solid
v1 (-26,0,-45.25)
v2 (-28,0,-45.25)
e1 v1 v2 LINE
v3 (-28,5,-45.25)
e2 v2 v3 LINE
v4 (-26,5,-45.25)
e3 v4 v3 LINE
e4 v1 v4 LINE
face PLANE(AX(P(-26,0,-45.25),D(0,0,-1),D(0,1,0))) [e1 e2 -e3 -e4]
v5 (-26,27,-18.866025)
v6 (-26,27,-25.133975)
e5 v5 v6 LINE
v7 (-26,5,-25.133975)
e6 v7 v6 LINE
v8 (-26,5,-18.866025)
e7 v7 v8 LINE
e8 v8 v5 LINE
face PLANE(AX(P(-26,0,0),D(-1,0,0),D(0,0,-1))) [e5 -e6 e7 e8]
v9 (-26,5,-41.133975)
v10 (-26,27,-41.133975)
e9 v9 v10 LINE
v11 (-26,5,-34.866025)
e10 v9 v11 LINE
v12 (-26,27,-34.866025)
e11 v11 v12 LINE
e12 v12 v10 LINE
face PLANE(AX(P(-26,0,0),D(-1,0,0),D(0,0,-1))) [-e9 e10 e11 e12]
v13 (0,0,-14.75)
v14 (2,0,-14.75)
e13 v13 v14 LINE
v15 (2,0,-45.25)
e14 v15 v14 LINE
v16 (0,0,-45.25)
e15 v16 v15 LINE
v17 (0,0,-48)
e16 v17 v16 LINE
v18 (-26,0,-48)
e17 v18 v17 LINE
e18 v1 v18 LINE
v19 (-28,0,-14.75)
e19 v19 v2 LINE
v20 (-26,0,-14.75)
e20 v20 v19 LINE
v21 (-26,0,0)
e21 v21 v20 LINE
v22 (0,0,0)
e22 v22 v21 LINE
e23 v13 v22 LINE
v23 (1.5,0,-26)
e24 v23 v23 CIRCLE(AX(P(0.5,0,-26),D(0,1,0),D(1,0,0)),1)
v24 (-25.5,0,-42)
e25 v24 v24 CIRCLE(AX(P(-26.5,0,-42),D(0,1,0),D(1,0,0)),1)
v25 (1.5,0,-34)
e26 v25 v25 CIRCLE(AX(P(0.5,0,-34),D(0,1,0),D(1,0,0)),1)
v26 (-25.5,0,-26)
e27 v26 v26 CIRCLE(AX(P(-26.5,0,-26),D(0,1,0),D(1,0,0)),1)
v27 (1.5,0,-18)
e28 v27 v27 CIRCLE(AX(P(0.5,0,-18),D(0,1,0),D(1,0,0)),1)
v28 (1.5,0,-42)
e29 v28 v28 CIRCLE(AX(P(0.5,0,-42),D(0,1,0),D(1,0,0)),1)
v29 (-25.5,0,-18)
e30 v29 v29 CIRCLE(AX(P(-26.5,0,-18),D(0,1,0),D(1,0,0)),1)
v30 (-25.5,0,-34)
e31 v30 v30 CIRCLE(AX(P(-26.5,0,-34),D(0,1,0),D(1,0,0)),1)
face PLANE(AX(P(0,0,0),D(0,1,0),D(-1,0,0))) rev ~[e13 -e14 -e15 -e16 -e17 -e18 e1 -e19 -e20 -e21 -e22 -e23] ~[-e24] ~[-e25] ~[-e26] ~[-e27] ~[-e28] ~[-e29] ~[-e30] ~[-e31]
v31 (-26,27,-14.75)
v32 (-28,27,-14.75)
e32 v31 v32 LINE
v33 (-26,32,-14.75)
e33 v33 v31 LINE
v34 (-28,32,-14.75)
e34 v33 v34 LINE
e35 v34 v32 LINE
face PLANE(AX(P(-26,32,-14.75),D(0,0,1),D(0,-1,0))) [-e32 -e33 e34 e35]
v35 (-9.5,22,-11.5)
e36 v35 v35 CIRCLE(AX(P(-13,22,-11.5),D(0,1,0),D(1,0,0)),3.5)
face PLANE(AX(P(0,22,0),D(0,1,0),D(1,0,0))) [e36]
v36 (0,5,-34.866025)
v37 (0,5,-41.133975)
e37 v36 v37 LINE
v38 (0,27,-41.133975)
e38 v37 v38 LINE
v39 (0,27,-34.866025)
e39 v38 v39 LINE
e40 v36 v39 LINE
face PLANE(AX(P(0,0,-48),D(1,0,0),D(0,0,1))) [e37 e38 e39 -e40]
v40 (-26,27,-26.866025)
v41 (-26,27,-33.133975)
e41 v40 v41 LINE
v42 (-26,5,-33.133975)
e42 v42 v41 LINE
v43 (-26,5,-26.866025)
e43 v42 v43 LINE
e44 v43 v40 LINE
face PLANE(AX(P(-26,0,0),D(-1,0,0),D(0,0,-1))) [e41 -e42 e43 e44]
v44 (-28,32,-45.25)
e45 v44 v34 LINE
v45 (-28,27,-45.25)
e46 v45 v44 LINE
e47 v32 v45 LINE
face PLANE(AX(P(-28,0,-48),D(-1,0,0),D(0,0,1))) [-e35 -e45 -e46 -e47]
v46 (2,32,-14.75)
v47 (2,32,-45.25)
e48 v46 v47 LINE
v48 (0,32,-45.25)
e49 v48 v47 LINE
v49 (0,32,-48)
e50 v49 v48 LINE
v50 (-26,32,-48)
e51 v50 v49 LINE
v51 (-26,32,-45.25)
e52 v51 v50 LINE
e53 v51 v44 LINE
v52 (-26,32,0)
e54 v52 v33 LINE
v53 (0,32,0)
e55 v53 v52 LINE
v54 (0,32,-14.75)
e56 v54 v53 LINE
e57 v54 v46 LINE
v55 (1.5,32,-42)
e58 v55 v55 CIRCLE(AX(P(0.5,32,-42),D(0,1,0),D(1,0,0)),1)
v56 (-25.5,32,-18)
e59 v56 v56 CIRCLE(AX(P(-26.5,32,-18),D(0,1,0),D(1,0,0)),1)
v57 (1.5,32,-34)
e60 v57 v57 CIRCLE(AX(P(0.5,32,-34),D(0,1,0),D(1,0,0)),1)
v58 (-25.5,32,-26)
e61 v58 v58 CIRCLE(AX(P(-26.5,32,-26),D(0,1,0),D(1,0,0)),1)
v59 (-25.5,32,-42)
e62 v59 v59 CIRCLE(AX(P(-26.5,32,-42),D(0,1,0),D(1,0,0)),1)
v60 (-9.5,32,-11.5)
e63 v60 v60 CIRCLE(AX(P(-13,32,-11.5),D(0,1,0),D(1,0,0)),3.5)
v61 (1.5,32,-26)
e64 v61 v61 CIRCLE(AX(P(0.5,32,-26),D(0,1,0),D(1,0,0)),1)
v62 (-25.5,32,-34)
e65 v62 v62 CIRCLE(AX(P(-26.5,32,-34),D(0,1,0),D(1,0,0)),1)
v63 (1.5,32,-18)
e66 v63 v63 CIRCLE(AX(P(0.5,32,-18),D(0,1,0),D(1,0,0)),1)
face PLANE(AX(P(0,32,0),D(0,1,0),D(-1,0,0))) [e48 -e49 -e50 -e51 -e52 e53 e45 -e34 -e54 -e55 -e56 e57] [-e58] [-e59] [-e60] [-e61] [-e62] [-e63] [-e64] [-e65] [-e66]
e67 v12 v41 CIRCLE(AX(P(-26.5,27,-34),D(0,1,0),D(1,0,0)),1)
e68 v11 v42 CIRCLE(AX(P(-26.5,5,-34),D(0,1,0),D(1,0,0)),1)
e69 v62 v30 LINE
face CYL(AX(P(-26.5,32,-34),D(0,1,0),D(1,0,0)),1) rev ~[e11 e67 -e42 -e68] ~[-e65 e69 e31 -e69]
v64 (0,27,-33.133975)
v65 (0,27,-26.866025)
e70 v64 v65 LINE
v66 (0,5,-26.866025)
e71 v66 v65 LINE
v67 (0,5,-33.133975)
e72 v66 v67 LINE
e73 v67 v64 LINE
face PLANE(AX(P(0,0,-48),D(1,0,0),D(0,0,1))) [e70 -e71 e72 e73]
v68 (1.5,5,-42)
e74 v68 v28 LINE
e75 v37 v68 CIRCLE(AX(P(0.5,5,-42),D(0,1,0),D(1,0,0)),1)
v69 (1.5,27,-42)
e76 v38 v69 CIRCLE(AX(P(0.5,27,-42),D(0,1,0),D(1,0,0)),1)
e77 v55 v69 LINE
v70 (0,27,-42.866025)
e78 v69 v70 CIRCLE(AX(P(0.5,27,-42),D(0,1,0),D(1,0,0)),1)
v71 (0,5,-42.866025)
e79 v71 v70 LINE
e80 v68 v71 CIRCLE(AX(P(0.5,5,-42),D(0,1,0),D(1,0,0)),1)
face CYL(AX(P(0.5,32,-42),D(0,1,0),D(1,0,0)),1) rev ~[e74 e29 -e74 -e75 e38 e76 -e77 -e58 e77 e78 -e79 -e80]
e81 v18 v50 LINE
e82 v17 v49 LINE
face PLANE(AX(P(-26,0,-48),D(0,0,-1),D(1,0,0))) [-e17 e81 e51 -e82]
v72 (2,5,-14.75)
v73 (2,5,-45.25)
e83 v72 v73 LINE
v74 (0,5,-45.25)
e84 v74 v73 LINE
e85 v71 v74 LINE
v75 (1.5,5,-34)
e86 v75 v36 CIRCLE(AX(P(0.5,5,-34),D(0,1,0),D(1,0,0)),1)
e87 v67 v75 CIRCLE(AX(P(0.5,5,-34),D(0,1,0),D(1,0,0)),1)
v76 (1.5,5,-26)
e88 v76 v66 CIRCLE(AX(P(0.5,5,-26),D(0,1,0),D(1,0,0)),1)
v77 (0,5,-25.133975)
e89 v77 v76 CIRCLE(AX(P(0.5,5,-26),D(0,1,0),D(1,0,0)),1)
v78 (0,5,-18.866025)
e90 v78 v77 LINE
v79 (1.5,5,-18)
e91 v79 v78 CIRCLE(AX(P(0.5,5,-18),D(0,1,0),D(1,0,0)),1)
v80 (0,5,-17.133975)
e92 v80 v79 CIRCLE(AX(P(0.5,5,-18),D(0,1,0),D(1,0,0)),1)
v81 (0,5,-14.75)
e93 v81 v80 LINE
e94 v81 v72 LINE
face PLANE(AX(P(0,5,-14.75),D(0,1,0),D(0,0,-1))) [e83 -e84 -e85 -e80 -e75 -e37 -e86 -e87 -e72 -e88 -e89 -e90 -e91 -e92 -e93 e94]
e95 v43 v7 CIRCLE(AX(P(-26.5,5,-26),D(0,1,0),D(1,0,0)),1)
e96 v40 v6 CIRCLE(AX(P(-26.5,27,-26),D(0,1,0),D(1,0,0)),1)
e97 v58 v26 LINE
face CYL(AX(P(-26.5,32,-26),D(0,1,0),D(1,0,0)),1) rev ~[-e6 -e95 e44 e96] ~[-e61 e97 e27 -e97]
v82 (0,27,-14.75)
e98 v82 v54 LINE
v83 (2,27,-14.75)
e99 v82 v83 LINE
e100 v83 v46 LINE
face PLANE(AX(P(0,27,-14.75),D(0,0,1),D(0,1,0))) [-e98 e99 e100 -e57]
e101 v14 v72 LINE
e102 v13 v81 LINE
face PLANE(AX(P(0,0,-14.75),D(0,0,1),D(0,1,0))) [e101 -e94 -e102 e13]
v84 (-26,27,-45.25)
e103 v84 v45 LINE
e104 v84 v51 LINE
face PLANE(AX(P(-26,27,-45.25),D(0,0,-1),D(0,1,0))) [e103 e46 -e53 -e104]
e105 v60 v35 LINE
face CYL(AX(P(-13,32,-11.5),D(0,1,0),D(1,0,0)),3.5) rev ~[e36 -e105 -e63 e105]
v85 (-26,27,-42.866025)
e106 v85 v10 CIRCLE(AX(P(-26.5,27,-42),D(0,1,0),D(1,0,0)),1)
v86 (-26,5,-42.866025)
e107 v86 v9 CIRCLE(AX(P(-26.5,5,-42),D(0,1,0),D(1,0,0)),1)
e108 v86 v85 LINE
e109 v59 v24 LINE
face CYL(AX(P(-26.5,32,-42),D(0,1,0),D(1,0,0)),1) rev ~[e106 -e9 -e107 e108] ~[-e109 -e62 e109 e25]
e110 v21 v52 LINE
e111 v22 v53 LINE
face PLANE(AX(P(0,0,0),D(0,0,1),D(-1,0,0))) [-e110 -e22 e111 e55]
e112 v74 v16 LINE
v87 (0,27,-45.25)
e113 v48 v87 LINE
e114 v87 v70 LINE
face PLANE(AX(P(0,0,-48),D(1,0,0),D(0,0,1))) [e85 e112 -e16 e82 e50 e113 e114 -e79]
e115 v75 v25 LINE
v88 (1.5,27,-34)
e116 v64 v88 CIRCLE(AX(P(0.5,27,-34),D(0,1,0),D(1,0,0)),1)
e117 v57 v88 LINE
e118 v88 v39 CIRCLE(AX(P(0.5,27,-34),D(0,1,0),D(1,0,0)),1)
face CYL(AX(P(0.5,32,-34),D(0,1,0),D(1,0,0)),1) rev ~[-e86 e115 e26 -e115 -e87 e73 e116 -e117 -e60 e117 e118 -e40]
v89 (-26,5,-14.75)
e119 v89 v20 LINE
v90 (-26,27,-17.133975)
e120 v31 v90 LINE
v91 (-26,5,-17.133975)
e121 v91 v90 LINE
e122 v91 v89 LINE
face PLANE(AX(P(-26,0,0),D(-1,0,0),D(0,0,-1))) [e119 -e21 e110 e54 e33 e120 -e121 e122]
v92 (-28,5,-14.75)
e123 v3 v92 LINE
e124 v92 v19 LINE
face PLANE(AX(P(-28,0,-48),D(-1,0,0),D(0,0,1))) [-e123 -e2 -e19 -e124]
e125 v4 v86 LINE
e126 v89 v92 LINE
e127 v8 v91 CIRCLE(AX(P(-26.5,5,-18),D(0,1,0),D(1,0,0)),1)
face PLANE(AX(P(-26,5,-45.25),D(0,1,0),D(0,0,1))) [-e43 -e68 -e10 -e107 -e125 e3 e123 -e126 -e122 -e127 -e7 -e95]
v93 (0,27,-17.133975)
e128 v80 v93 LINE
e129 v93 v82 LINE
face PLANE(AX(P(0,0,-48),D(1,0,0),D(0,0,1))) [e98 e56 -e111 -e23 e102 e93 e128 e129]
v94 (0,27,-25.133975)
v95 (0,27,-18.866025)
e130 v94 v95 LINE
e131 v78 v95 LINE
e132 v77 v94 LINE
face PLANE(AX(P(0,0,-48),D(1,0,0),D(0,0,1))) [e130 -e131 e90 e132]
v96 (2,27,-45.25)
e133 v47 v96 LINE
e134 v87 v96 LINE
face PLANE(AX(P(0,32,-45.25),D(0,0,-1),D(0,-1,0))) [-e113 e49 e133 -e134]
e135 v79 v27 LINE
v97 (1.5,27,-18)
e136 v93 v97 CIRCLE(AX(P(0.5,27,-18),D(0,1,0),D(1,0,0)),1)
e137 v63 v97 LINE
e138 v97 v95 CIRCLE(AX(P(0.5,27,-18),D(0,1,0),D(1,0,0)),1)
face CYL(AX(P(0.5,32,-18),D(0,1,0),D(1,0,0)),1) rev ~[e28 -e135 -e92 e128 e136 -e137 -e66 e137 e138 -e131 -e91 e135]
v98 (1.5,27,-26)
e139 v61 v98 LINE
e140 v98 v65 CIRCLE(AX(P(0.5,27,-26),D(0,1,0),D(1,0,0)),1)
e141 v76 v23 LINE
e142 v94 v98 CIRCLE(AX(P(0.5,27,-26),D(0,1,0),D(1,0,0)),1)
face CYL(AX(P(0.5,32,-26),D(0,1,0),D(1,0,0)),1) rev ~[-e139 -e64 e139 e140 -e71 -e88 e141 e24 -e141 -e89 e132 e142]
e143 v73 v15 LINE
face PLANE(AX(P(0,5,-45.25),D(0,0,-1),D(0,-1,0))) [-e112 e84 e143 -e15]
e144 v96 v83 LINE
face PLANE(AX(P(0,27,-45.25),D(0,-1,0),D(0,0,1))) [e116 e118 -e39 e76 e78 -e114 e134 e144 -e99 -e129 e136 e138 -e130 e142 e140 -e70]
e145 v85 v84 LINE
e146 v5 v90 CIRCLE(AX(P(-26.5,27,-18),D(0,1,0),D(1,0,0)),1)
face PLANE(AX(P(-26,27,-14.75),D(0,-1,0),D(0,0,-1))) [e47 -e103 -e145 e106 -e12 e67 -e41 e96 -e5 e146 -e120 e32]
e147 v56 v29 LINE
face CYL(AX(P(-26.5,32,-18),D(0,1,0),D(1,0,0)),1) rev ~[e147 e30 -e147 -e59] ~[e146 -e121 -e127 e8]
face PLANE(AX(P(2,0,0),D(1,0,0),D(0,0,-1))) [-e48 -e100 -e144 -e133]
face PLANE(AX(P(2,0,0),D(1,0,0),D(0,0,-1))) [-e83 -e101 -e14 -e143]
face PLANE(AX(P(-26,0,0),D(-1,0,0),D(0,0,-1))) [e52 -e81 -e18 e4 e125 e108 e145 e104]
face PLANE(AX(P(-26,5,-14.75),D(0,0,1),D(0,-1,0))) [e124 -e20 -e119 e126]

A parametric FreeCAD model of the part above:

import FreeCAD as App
import Part
import Sketcher

doc = App.newDocument("Part")
body = doc.addObject("PartDesign::Body", "Body")

# Sketch on XZ plane
sketch1 = body.newObject("Sketcher::SketchObject", "Sketch")
sketch1.AttachmentSupport = (doc.getObject("XZ_Plane"), [""])
sketch1.MapMode = "FlatFace"
sketch1.addGeometry(Part.LineSegment(App.Vector(-26, 0, 0), App.Vector(0, 0, 0)), False)
sketch1.addGeometry(Part.LineSegment(App.Vector(0, 0, 0), App.Vector(0, -48, 0)), False)
sketch1.addGeometry(Part.LineSegment(App.Vector(0, -48, 0), App.Vector(-26, -48, 0)), False)
sketch1.addGeometry(Part.LineSegment(App.Vector(-26, -48, 0), App.Vector(-26, 0, 0)), False)
sketch1.addConstraint(Sketcher.Constraint("Coincident", 0, 2, 1, 1))
sketch1.addConstraint(Sketcher.Constraint("Coincident", 1, 2, 2, 1))
sketch1.addConstraint(Sketcher.Constraint("Coincident", 2, 2, 3, 1))
sketch1.addConstraint(Sketcher.Constraint("Coincident", 3, 2, 0, 1))
sketch1.addConstraint(Sketcher.Constraint("Horizontal", 0))
sketch1.addConstraint(Sketcher.Constraint("Vertical", 1))
sketch1.addConstraint(Sketcher.Constraint("Horizontal", 2))
sketch1.addConstraint(Sketcher.Constraint("Vertical", 3))
sketch1.addConstraint(Sketcher.Constraint("Coincident", 0, 2, -1, 1))
sketch1.addConstraint(Sketcher.Constraint("DistanceX", 0, 1, 0, 2, 26.0))
sketch1.addConstraint(Sketcher.Constraint("DistanceY", 1, 2, 1, 1, 48.0))
pad1 = body.newObject("PartDesign::Pad", "Pad")
pad1.Profile = sketch1
pad1.Length = 32
pad1.Reversed = True

# Sketch on XZ plane
sketch2 = body.newObject("Sketcher::SketchObject", "Sketch001")
sketch2.AttachmentSupport = (doc.getObject("XZ_Plane"), [""])
sketch2.MapMode = "FlatFace"
sketch2.AttachmentOffset = App.Placement(App.Vector(0, 0, -32), App.Rotation())
sketch2.addGeometry(Part.Circle(App.Vector(-13, -11.5, 0), App.Vector(0, 0, 1), 3.5), False)
sketch2.addConstraint(Sketcher.Constraint("Diameter", 0, 7.0))
sketch2.addConstraint(Sketcher.Constraint("DistanceX", 0, 3, -1, 1, 13.0))
sketch2.addConstraint(Sketcher.Constraint("DistanceY", 0, 3, -1, 1, 11.5))
pocket1 = body.newObject("PartDesign::Pocket", "Pocket")
pocket1.Profile = sketch2
pocket1.Length = 10
pocket1.Reversed = True

# Sketch on YZ plane
sketch3 = body.newObject("Sketcher::SketchObject", "Sketch002")
sketch3.AttachmentSupport = (doc.getObject("YZ_Plane"), [""])
sketch3.MapMode = "FlatFace"
sketch3.addGeometry(Part.LineSegment(App.Vector(32, -45, 0), App.Vector(32, -15, 0)), False)
sketch3.addGeometry(Part.LineSegment(App.Vector(32, -15, 0), App.Vector(27, -15, 0)), False)
sketch3.addGeometry(Part.LineSegment(App.Vector(27, -15, 0), App.Vector(27, -45, 0)), False)
sketch3.addGeometry(Part.LineSegment(App.Vector(27, -45, 0), App.Vector(32, -45, 0)), False)
sketch3.addGeometry(Part.LineSegment(App.Vector(5, -15, 0), App.Vector(0, -15, 0)), False)
sketch3.addGeometry(Part.LineSegment(App.Vector(0, -15, 0), App.Vector(0, -45, 0)), False)
sketch3.addGeometry(Part.LineSegment(App.Vector(0, -45, 0), App.Vector(5, -45, 0)), False)
sketch3.addGeometry(Part.LineSegment(App.Vector(5, -45, 0), App.Vector(5, -15, 0)), False)
sketch3.addConstraint(Sketcher.Constraint("Coincident", 0, 2, 1, 1))
sketch3.addConstraint(Sketcher.Constraint("Coincident", 1, 2, 2, 1))
sketch3.addConstraint(Sketcher.Constraint("Coincident", 2, 2, 3, 1))
sketch3.addConstraint(Sketcher.Constraint("Coincident", 3, 2, 0, 1))
sketch3.addConstraint(Sketcher.Constraint("Coincident", 4, 2, 5, 1))
sketch3.addConstraint(Sketcher.Constraint("Coincident", 5, 2, 6, 1))
sketch3.addConstraint(Sketcher.Constraint("Coincident", 6, 2, 7, 1))
sketch3.addConstraint(Sketcher.Constraint("Coincident", 7, 2, 4, 1))
sketch3.addConstraint(Sketcher.Constraint("Vertical", 0))
sketch3.addConstraint(Sketcher.Constraint("Horizontal", 1))
sketch3.addConstraint(Sketcher.Constraint("Vertical", 2))
sketch3.addConstraint(Sketcher.Constraint("Horizontal", 3))
sketch3.addConstraint(Sketcher.Constraint("Horizontal", 4))
sketch3.addConstraint(Sketcher.Constraint("Vertical", 5))
sketch3.addConstraint(Sketcher.Constraint("Horizontal", 6))
sketch3.addConstraint(Sketcher.Constraint("Vertical", 7))
sketch3.addConstraint(Sketcher.Constraint("PointOnObject", 4, 2, -2))
sketch3.addConstraint(Sketcher.Constraint("Horizontal", 1, 2, 4, 2))
sketch3.addConstraint(Sketcher.Constraint("Horizontal", 3, 2, 5, 2))
sketch3.addConstraint(Sketcher.Constraint("Equal", 3, 4))
sketch3.addConstraint(Sketcher.Constraint("DistanceX", 1, 2, 1, 1, 5.0))
sketch3.addConstraint(Sketcher.Constraint("DistanceY", 0, 1, 0, 2, 30.5))
sketch3.addConstraint(Sketcher.Constraint("DistanceY", 0, 2, -1, 1, 14.75))
sketch3.addConstraint(Sketcher.Constraint("DistanceX", -1, 1, 0, 2, 32.0))
pad2 = body.newObject("PartDesign::Pad", "Pad001")
pad2.Profile = sketch3
pad2.Length = 2

# Sketch on YZ plane
sketch4 = body.newObject("Sketcher::SketchObject", "Sketch003")
sketch4.AttachmentSupport = (doc.getObject("YZ_Plane"), [""])
sketch4.MapMode = "FlatFace"
sketch4.AttachmentOffset = App.Placement(App.Vector(0, 0, -26), App.Rotation())
sketch4.addGeometry(Part.LineSegment(App.Vector(32, -45, 0), App.Vector(27, -45, 0)), False)
sketch4.addGeometry(Part.LineSegment(App.Vector(27, -45, 0), App.Vector(27, -15, 0)), False)
sketch4.addGeometry(Part.LineSegment(App.Vector(27, -15, 0), App.Vector(32, -15, 0)), False)
sketch4.addGeometry(Part.LineSegment(App.Vector(32, -15, 0), App.Vector(32, -45, 0)), False)
sketch4.addGeometry(Part.LineSegment(App.Vector(0, -45, 0), App.Vector(0, -15, 0)), False)
sketch4.addGeometry(Part.LineSegment(App.Vector(0, -15, 0), App.Vector(5, -15, 0)), False)
sketch4.addGeometry(Part.LineSegment(App.Vector(5, -15, 0), App.Vector(5, -45, 0)), False)
sketch4.addGeometry(Part.LineSegment(App.Vector(5, -45, 0), App.Vector(0, -45, 0)), False)
sketch4.addConstraint(Sketcher.Constraint("Coincident", 0, 2, 1, 1))
sketch4.addConstraint(Sketcher.Constraint("Coincident", 1, 2, 2, 1))
sketch4.addConstraint(Sketcher.Constraint("Coincident", 2, 2, 3, 1))
sketch4.addConstraint(Sketcher.Constraint("Coincident", 3, 2, 0, 1))
sketch4.addConstraint(Sketcher.Constraint("Coincident", 4, 2, 5, 1))
sketch4.addConstraint(Sketcher.Constraint("Coincident", 5, 2, 6, 1))
sketch4.addConstraint(Sketcher.Constraint("Coincident", 6, 2, 7, 1))
sketch4.addConstraint(Sketcher.Constraint("Coincident", 7, 2, 4, 1))
sketch4.addConstraint(Sketcher.Constraint("Horizontal", 0))
sketch4.addConstraint(Sketcher.Constraint("Vertical", 1))
sketch4.addConstraint(Sketcher.Constraint("Horizontal", 2))
sketch4.addConstraint(Sketcher.Constraint("Vertical", 3))
sketch4.addConstraint(Sketcher.Constraint("Vertical", 4))
sketch4.addConstraint(Sketcher.Constraint("Horizontal", 5))
sketch4.addConstraint(Sketcher.Constraint("Vertical", 6))
sketch4.addConstraint(Sketcher.Constraint("Horizontal", 7))
sketch4.addConstraint(Sketcher.Constraint("PointOnObject", 4, 2, -2))
sketch4.addConstraint(Sketcher.Constraint("Horizontal", 2, 2, 4, 2))
sketch4.addConstraint(Sketcher.Constraint("Horizontal", 3, 2, 6, 2))
sketch4.addConstraint(Sketcher.Constraint("Equal", 2, 5))
sketch4.addConstraint(Sketcher.Constraint("DistanceX", 0, 2, 0, 1, 5.0))
sketch4.addConstraint(Sketcher.Constraint("DistanceY", 1, 1, 1, 2, 30.5))
sketch4.addConstraint(Sketcher.Constraint("DistanceX", -1, 1, 0, 2, 27.0))
sketch4.addConstraint(Sketcher.Constraint("DistanceY", 0, 2, -1, 1, 45.25))
pad3 = body.newObject("PartDesign::Pad", "Pad002")
pad3.Profile = sketch4
pad3.Length = 2
pad3.Reversed = True

# Sketch on XZ plane
sketch5 = body.newObject("Sketcher::SketchObject", "Sketch004")
sketch5.AttachmentSupport = (doc.getObject("XZ_Plane"), [""])
sketch5.MapMode = "FlatFace"
sketch5.AttachmentOffset = App.Placement(App.Vector(0, 0, -32), App.Rotation())
sketch5.addGeometry(Part.Circle(App.Vector(0.5, -42, 0), App.Vector(0, 0, 1), 1), False)
sketch5.addGeometry(Part.Circle(App.Vector(0.5, -34, 0), App.Vector(0, 0, 1), 1), False)
sketch5.addGeometry(Part.Circle(App.Vector(0.5, -26, 0), App.Vector(0, 0, 1), 1), False)
sketch5.addGeometry(Part.Circle(App.Vector(0.5, -18, 0), App.Vector(0, 0, 1), 1), False)
sketch5.addGeometry(Part.Circle(App.Vector(-26.5, -42, 0), App.Vector(0, 0, 1), 1), False)
sketch5.addGeometry(Part.Circle(App.Vector(-26.5, -34, 0), App.Vector(0, 0, 1), 1), False)
sketch5.addGeometry(Part.Circle(App.Vector(-26.5, -26, 0), App.Vector(0, 0, 1), 1), False)
sketch5.addGeometry(Part.Circle(App.Vector(-26.5, -18, 0), App.Vector(0, 0, 1), 1), False)
sketch5.addConstraint(Sketcher.Constraint("Equal", 0, 1))
sketch5.addConstraint(Sketcher.Constraint("Equal", 1, 2))
sketch5.addConstraint(Sketcher.Constraint("Equal", 2, 3))
sketch5.addConstraint(Sketcher.Constraint("Equal", 3, 4))
sketch5.addConstraint(Sketcher.Constraint("Equal", 4, 5))
sketch5.addConstraint(Sketcher.Constraint("Equal", 5, 6))
sketch5.addConstraint(Sketcher.Constraint("Equal", 6, 7))
sketch5.addConstraint(Sketcher.Constraint("Horizontal", 0, 3, 4, 3))
sketch5.addConstraint(Sketcher.Constraint("Horizontal", 1, 3, 5, 3))
sketch5.addConstraint(Sketcher.Constraint("Horizontal", 2, 3, 6, 3))
sketch5.addConstraint(Sketcher.Constraint("Horizontal", 3, 3, 7, 3))
sketch5.addConstraint(Sketcher.Constraint("Vertical", 0, 3, 1, 3))
sketch5.addConstraint(Sketcher.Constraint("Vertical", 1, 3, 2, 3))
sketch5.addConstraint(Sketcher.Constraint("Vertical", 2, 3, 3, 3))
sketch5.addConstraint(Sketcher.Constraint("Vertical", 4, 3, 5, 3))
sketch5.addConstraint(Sketcher.Constraint("Vertical", 5, 3, 6, 3))
sketch5.addConstraint(Sketcher.Constraint("Vertical", 6, 3, 7, 3))
sketch5.addConstraint(Sketcher.Constraint("Diameter", 0, 2.0))
sketch5.addConstraint(Sketcher.Constraint("DistanceY", 0, 3, 1, 3, 8.0))
sketch5.addConstraint(Sketcher.Constraint("DistanceY", 1, 3, 2, 3, 8.0))
sketch5.addConstraint(Sketcher.Constraint("DistanceY", 2, 3, 3, 3, 8.0))
sketch5.addConstraint(Sketcher.Constraint("DistanceY", 0, 3, -1, 1, 42.0))
sketch5.addConstraint(Sketcher.Constraint("DistanceX", 4, 3, 0, 3, 27.0))
sketch5.addConstraint(Sketcher.Constraint("DistanceX", -1, 1, 0, 3, 0.5))
pocket2 = body.newObject("PartDesign::Pocket", "Pocket001")
pocket2.Profile = sketch5
pocket2.Type = "ThroughAll"
pocket2.Reversed = True

doc.recompute()
